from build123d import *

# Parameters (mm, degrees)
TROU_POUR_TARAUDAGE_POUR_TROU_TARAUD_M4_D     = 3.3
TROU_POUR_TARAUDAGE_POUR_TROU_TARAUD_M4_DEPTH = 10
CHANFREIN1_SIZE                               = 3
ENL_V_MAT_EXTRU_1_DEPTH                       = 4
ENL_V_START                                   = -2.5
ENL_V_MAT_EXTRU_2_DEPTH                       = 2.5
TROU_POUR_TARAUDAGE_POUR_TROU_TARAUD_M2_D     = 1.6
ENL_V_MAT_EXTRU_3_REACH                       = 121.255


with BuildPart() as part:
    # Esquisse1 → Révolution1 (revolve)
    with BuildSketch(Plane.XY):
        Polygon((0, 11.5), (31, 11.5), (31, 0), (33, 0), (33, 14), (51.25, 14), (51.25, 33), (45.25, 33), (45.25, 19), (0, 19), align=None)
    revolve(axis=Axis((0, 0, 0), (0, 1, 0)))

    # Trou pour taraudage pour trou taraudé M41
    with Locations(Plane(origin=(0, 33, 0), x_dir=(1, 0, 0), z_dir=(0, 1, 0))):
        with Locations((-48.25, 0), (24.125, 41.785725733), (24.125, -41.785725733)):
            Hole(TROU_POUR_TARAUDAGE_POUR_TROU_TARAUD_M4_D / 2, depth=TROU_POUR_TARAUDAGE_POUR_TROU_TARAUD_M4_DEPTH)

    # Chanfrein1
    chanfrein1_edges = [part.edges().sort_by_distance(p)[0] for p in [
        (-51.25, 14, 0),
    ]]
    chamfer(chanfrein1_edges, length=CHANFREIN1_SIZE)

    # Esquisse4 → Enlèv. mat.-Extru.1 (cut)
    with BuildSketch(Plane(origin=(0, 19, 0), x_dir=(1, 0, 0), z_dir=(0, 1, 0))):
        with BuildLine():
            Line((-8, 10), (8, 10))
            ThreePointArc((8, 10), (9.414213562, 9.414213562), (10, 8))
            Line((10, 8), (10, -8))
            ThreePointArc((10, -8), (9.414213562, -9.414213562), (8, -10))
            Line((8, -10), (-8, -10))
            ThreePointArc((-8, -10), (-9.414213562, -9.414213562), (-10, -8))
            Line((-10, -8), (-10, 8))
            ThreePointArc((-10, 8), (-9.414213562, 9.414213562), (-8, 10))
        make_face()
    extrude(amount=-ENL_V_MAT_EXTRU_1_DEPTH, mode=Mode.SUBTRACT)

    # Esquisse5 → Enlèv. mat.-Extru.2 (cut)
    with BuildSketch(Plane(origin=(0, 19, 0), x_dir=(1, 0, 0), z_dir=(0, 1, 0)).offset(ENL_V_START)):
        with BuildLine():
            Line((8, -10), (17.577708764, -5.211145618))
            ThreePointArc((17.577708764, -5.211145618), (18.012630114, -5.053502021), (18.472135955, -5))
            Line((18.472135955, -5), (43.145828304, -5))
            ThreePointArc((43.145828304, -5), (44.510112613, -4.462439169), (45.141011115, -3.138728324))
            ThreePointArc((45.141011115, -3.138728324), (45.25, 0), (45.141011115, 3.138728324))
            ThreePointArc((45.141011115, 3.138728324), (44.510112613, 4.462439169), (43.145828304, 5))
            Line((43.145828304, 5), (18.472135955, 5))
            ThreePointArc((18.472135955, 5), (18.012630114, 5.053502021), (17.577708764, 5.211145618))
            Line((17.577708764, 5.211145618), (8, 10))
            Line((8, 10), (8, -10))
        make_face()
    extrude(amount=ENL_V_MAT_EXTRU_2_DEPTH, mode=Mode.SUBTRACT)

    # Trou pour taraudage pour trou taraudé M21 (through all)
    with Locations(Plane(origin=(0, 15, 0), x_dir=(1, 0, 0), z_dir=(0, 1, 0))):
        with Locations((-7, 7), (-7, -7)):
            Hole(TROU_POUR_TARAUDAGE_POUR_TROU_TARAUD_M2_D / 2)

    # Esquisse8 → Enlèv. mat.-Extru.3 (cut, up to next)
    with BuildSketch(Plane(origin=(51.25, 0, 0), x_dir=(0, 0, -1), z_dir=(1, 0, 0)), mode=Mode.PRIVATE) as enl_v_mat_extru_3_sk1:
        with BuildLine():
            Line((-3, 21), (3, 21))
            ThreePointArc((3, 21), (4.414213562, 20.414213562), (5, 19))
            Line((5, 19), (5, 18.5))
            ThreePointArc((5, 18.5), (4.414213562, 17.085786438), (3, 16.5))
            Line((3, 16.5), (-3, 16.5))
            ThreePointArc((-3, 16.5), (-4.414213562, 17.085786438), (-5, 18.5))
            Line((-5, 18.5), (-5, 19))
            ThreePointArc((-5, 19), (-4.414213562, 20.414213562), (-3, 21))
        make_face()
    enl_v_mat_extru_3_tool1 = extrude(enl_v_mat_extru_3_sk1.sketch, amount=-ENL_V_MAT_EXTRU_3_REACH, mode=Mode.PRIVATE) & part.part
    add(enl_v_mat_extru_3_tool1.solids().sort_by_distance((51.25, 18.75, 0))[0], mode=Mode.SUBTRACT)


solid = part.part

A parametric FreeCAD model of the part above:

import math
import FreeCAD as App
import Part
import Sketcher

V = App.Vector


def edges_at(feature, points):
    """Names of the edges that pass closest to the given points."""
    edges = feature.Shape.Edges
    near = lambda p: min(range(len(edges)), key=lambda i: edges[i].distToShape(Part.Vertex(*p))[0])
    return sorted({f"Edge{near(p) + 1}" for p in points})


def add_polygon(sketch, points):
    """Adds a closed chain of lines whose ends are joined by coincident constraints."""
    first, n = sketch.GeometryCount, len(points)
    for a, b in zip(points, points[1:] + points[:1]):
        sketch.addGeometry(Part.LineSegment(App.Vector(*a, 0), App.Vector(*b, 0)), False)
    for i in range(n):
        sketch.addConstraint(Sketcher.Constraint("Coincident", first + i, 2, first + (i + 1) % n, 1))

doc = App.newDocument("Part")
body = doc.addObject("PartDesign::Body", "Body")

# Sketch on XY plane
sketch1 = body.newObject("Sketcher::SketchObject", "Sketch")
sketch1.AttachmentSupport = (doc.getObject("XY_Plane"), [""])
sketch1.MapMode = "FlatFace"
add_polygon(sketch1, [(0, 11.5), (31, 11.5), (31, 0), (33, 0), (33, 14), (51.2, 14), (51.2, 33), (45.2, 33), (45.2, 19), (0, 19)])  # lines 0-9
sketch1.addConstraint([
    Sketcher.Constraint("Horizontal", 0),
    Sketcher.Constraint("Vertical", 1),
    Sketcher.Constraint("Horizontal", 2),
    Sketcher.Constraint("Vertical", 3),
    Sketcher.Constraint("Horizontal", 4),
    Sketcher.Constraint("Vertical", 5),
    Sketcher.Constraint("Horizontal", 6),
    Sketcher.Constraint("Vertical", 7),
    Sketcher.Constraint("Horizontal", 8),
    Sketcher.Constraint("Vertical", 9),
    Sketcher.Constraint("PointOnObject", 1, 2, -1),
    Sketcher.Constraint("PointOnObject", 8, 2, -2),
    Sketcher.Constraint("Equal", 3, 7),
    Sketcher.Constraint("DistanceX", 0, 1, 0, 2, 31.0),
    Sketcher.Constraint("DistanceX", 2, 1, 2, 2, 2.0),
    Sketcher.Constraint("DistanceX", 6, 2, 6, 1, 6.0),
    Sketcher.Constraint("DistanceY", 3, 1, 3, 2, 14.0),
    Sketcher.Constraint("DistanceY", 5, 1, 5, 2, 19.0),
    Sketcher.Constraint("DistanceY", 1, 2, 1, 1, 11.5),
    Sketcher.Constraint("DistanceX", 4, 1, 4, 2, 18.25),
])
revolution = body.newObject("PartDesign::Revolution", "Revolution")
revolution.Profile = sketch1
revolution.ReferenceAxis = (sketch1, ["V_Axis"])
revolution.Angle = 360

# Sketch on XZ plane
sketch2 = body.newObject("Sketcher::SketchObject", "Sketch001")
sketch2.AttachmentSupport = (doc.getObject("XZ_Plane"), [""])
sketch2.MapMode = "FlatFace"
sketch2.AttachmentOffset = App.Placement(V(0, 0, -33), App.Rotation())
sketch2.addGeometry([
    Part.Circle(V(-48.2, 0, 0), V(0, 0, 1), 1.6),
    Part.Circle(V(24.1, -41.8, 0), V(0, 0, 1), 1.6),
    Part.Circle(V(24.1, 41.8, 0), V(0, 0, 1), 1.6),
], False)
sketch2.addConstraint([
    Sketcher.Constraint("Equal", 0, 1),
    Sketcher.Constraint("Equal", 1, 2),
    Sketcher.Constraint("Symmetric", 1, 3, 2, 3, -1),
    Sketcher.Constraint("PointOnObject", 0, 3, -1),
    Sketcher.Constraint("Diameter", 0, 3.3),
    Sketcher.Constraint("DistanceX", 0, 3, -1, 1, 48.25),
    Sketcher.Constraint("DistanceX", -1, 1, 1, 3, 24.125),
    Sketcher.Constraint("DistanceY", 1, 3, 2, 3, 83.571451),
])
doc.recompute()
hole = body.newObject("PartDesign::Hole", "Hole")
hole.Profile = sketch2
hole.ThreadType = "None"
hole.Diameter = 3.3
hole.DepthType = "Dimension"
hole.Depth = 10
hole.DrillPoint = "Flat"
hole.Reversed = True
doc.recompute()

chamfer = body.newObject("PartDesign::Chamfer", "Chamfer")
chamfer.Base = (hole, edges_at(hole, [(-51.25, 14, 0)]))
chamfer.Size = 3

# Sketch on XZ plane
sketch3 = body.newObject("Sketcher::SketchObject", "Sketch002")
sketch3.AttachmentSupport = (doc.getObject("XZ_Plane"), [""])
sketch3.MapMode = "FlatFace"
sketch3.AttachmentOffset = App.Placement(V(0, 0, -19), App.Rotation())
sketch3.addGeometry([
    Part.LineSegment(V(8, -10, 0), V(-8, -10, 0)),  # 0
    Part.ArcOfCircle(Part.Circle(V(-8, -8, 0), V(0, 0, 1), 2), math.radians(-180), math.radians(-90)),  # 1
    Part.LineSegment(V(-10, -8, 0), V(-10, 8, 0)),  # 2
    Part.ArcOfCircle(Part.Circle(V(-8, 8, 0), V(0, 0, 1), 2), math.radians(90), math.radians(180)),  # 3
    Part.LineSegment(V(-8, 10, 0), V(8, 10, 0)),  # 4
    Part.ArcOfCircle(Part.Circle(V(8, 8, 0), V(0, 0, 1), 2), math.radians(0), math.radians(90)),  # 5
    Part.LineSegment(V(10, 8, 0), V(10, -8, 0)),  # 6
    Part.ArcOfCircle(Part.Circle(V(8, -8, 0), V(0, 0, 1), 2), math.radians(-90), math.radians(0)),  # 7
], False)
sketch3.addConstraint([
    Sketcher.Constraint("Tangent", 0, 2, 1, 2),
    Sketcher.Constraint("Tangent", 1, 1, 2, 1),
    Sketcher.Constraint("Tangent", 2, 2, 3, 2),
    Sketcher.Constraint("Tangent", 3, 1, 4, 1),
    Sketcher.Constraint("Tangent", 4, 2, 5, 2),
    Sketcher.Constraint("Tangent", 5, 1, 6, 1),
    Sketcher.Constraint("Tangent", 6, 2, 7, 2),
    Sketcher.Constraint("Tangent", 7, 1, 0, 1),
    Sketcher.Constraint("Horizontal", 0),
    Sketcher.Constraint("Vertical", 2),
    Sketcher.Constraint("Horizontal", 4),
    Sketcher.Constraint("Vertical", 6),
    Sketcher.Constraint("Equal", 1, 3),
    Sketcher.Constraint("Equal", 3, 5),
    Sketcher.Constraint("Equal", 5, 7),
    Sketcher.Constraint("Symmetric", 1, 3, 5, 3, -1, 1),
    Sketcher.Constraint("Equal", 4, 2),
    Sketcher.Constraint("Radius", 1, 2.0),
    Sketcher.Constraint("DistanceX", 0, 2, 0, 1, 16.0),
])
pocket1 = body.newObject("PartDesign::Pocket", "Pocket")
pocket1.Profile = sketch3
pocket1.Length = 4
pocket1.Reversed = True

# Sketch on XZ plane
sketch4 = body.newObject("Sketcher::SketchObject", "Sketch003")
sketch4.AttachmentSupport = (doc.getObject("XZ_Plane"), [""])
sketch4.MapMode = "FlatFace"
sketch4.AttachmentOffset = App.Placement(V(0, 0, -16.5), App.Rotation())
sketch4.addGeometry([
    Part.LineSegment(V(8, 10, 0), V(17.6, 5.2, 0)),  # 0
    Part.ArcOfCircle(Part.Circle(V(18.5, 7, 0), V(0, 0, 1), 2), math.radians(-117), math.radians(-90)),  # 1
    Part.LineSegment(V(18.5, 5, 0), V(43.1, 5, 0)),  # 2
    Part.ArcOfCircle(Part.Circle(V(43.1, 3, 0), V(0, 0, 1), 2), math.radians(4), math.radians(90)),  # 3
    Part.ArcOfCircle(Part.Circle(V(0, 0, 0), V(0, 0, 1), 45.2), math.radians(-3.98), math.radians(3.98)),  # 4
    Part.ArcOfCircle(Part.Circle(V(43.1, -3, 0), V(0, 0, 1), 2), math.radians(-90), math.radians(-4)),  # 5
    Part.LineSegment(V(43.1, -5, 0), V(18.5, -5, 0)),  # 6
    Part.ArcOfCircle(Part.Circle(V(18.5, -7, 0), V(0, 0, 1), 2), math.radians(90), math.radians(117)),  # 7
    Part.LineSegment(V(17.6, -5.2, 0), V(8, -10, 0)),  # 8
    Part.LineSegment(V(8, -10, 0), V(8, 10, 0)),  # 9
], False)
sketch4.addConstraint([
    Sketcher.Constraint("Tangent", 0, 2, 1, 1),
    Sketcher.Constraint("Tangent", 1, 2, 2, 1),
    Sketcher.Constraint("Tangent", 2, 2, 3, 2),
    Sketcher.Constraint("Tangent", 3, 1, 4, 2),
    Sketcher.Constraint("Tangent", 4, 1, 5, 2),
    Sketcher.Constraint("Tangent", 5, 1, 6, 1),
    Sketcher.Constraint("Tangent", 6, 2, 7, 1),
    Sketcher.Constraint("Tangent", 7, 2, 8, 1),
    Sketcher.Constraint("Coincident", 8, 2, 9, 1),
    Sketcher.Constraint("Coincident", 9, 2, 0, 1),
    Sketcher.Constraint("Horizontal", 2),
    Sketcher.Constraint("Horizontal", 6),
    Sketcher.Constraint("Vertical", 9),
    Sketcher.Constraint("Coincident", 4, 3, -1, 1),
    Sketcher.Constraint("Equal", 1, 3),
    Sketcher.Constraint("Equal", 3, 5),
    Sketcher.Constraint("Equal", 5, 7),
    Sketcher.Constraint("Symmetric", 1, 3, 7, 3, -1),
    Sketcher.Constraint("Vertical", 0, 2, 7, 2),
    Sketcher.Constraint("Radius", 1, 2.0),
    Sketcher.Constraint("DistanceY", 9, 1, 9, 2, 20.0),
    Sketcher.Constraint("Radius", 4, 45.25),
    Sketcher.Constraint("DistanceY", -1, 1, 1, 3, 7.0),
    Sketcher.Constraint("DistanceX", -1, 1, 8, 2, 8.0),
    Sketcher.Constraint("DistanceX", 2, 1, 2, 2, 24.673692),
])
pocket2 = body.newObject("PartDesign::Pocket", "Pocket001")
pocket2.Profile = sketch4
pocket2.Length = 2.5

# Sketch on XZ plane
sketch5 = body.newObject("Sketcher::SketchObject", "Sketch004")
sketch5.AttachmentSupport = (doc.getObject("XZ_Plane"), [""])
sketch5.MapMode = "FlatFace"
sketch5.AttachmentOffset = App.Placement(V(0, 0, -15), App.Rotation())
sketch5.addGeometry([
    Part.Circle(V(-7, -7, 0), V(0, 0, 1), 0.8),
    Part.Circle(V(-7, 7, 0), V(0, 0, 1), 0.8),
], False)
sketch5.addConstraint([
    Sketcher.Constraint("Equal", 0, 1),
    Sketcher.Constraint("Symmetric", 0, 3, 1, 3, -1),
    Sketcher.Constraint("Diameter", 0, 1.6),
    Sketcher.Constraint("DistanceX", 0, 3, -1, 1, 7.0),
    Sketcher.Constraint("DistanceY", 0, 3, -1, 1, 7.0),
])
doc.recompute()
hole2 = body.newObject("PartDesign::Hole", "Hole001")
hole2.Profile = sketch5
hole2.ThreadType = "None"
hole2.Diameter = 1.6
hole2.DepthType = "ThroughAll"
hole2.Reversed = True

# Sketch on YZ plane
sketch6 = body.newObject("Sketcher::SketchObject", "Sketch005")
sketch6.AttachmentSupport = (doc.getObject("YZ_Plane"), [""])
sketch6.MapMode = "FlatFace"
sketch6.AttachmentOffset = App.Placement(V(0, 0, 51.25), App.Rotation())
sketch6.addGeometry([
    Part.LineSegment(V(21, -3, 0), V(21, 3, 0)),  # 0
    Part.ArcOfCircle(Part.Circle(V(19, 3, 0), V(0, 0, 1), 2), math.radians(0), math.radians(90)),  # 1
    Part.LineSegment(V(19, 5, 0), V(18.5, 5, 0)),  # 2
    Part.ArcOfCircle(Part.Circle(V(18.5, 3, 0), V(0, 0, 1), 2), math.radians(90), math.radians(180)),  # 3
    Part.LineSegment(V(16.5, 3, 0), V(16.5, -3, 0)),  # 4
    Part.ArcOfCircle(Part.Circle(V(18.5, -3, 0), V(0, 0, 1), 2), math.radians(-180), math.radians(-90)),  # 5
    Part.LineSegment(V(18.5, -5, 0), V(19, -5, 0)),  # 6
    Part.ArcOfCircle(Part.Circle(V(19, -3, 0), V(0, 0, 1), 2), math.radians(-90), math.radians(0)),  # 7
], False)
sketch6.addConstraint([
    Sketcher.Constraint("Tangent", 0, 2, 1, 1),
    Sketcher.Constraint("Tangent", 1, 2, 2, 1),
    Sketcher.Constraint("Tangent", 2, 2, 3, 1),
    Sketcher.Constraint("Tangent", 3, 2, 4, 1),
    Sketcher.Constraint("Tangent", 4, 2, 5, 1),
    Sketcher.Constraint("Tangent", 5, 2, 6, 1),
    Sketcher.Constraint("Tangent", 6, 2, 7, 1),
    Sketcher.Constraint("Tangent", 7, 2, 0, 1),
    Sketcher.Constraint("Vertical", 0),
    Sketcher.Constraint("Horizontal", 2),
    Sketcher.Constraint("Vertical", 4),
    Sketcher.Constraint("Horizontal", 6),
    Sketcher.Constraint("Equal", 1, 3),
    Sketcher.Constraint("Equal", 3, 5),
    Sketcher.Constraint("Equal", 5, 7),
    Sketcher.Constraint("Radius", 1, 2.0),
    Sketcher.Constraint("DistanceY", 0, 1, 0, 2, 6.0),
    Sketcher.Constraint("DistanceX", 2, 2, 2, 1, 0.5),
    Sketcher.Constraint("DistanceX", -1, 1, 1, 3, 19.0),
    Sketcher.Constraint("DistanceY", -1, 1, 1, 3, 3.0),
])
pocket3 = body.newObject("PartDesign::Pocket", "Pocket002")
pocket3.Profile = sketch6
pocket3.Length = 8.104172

doc.recompute()
